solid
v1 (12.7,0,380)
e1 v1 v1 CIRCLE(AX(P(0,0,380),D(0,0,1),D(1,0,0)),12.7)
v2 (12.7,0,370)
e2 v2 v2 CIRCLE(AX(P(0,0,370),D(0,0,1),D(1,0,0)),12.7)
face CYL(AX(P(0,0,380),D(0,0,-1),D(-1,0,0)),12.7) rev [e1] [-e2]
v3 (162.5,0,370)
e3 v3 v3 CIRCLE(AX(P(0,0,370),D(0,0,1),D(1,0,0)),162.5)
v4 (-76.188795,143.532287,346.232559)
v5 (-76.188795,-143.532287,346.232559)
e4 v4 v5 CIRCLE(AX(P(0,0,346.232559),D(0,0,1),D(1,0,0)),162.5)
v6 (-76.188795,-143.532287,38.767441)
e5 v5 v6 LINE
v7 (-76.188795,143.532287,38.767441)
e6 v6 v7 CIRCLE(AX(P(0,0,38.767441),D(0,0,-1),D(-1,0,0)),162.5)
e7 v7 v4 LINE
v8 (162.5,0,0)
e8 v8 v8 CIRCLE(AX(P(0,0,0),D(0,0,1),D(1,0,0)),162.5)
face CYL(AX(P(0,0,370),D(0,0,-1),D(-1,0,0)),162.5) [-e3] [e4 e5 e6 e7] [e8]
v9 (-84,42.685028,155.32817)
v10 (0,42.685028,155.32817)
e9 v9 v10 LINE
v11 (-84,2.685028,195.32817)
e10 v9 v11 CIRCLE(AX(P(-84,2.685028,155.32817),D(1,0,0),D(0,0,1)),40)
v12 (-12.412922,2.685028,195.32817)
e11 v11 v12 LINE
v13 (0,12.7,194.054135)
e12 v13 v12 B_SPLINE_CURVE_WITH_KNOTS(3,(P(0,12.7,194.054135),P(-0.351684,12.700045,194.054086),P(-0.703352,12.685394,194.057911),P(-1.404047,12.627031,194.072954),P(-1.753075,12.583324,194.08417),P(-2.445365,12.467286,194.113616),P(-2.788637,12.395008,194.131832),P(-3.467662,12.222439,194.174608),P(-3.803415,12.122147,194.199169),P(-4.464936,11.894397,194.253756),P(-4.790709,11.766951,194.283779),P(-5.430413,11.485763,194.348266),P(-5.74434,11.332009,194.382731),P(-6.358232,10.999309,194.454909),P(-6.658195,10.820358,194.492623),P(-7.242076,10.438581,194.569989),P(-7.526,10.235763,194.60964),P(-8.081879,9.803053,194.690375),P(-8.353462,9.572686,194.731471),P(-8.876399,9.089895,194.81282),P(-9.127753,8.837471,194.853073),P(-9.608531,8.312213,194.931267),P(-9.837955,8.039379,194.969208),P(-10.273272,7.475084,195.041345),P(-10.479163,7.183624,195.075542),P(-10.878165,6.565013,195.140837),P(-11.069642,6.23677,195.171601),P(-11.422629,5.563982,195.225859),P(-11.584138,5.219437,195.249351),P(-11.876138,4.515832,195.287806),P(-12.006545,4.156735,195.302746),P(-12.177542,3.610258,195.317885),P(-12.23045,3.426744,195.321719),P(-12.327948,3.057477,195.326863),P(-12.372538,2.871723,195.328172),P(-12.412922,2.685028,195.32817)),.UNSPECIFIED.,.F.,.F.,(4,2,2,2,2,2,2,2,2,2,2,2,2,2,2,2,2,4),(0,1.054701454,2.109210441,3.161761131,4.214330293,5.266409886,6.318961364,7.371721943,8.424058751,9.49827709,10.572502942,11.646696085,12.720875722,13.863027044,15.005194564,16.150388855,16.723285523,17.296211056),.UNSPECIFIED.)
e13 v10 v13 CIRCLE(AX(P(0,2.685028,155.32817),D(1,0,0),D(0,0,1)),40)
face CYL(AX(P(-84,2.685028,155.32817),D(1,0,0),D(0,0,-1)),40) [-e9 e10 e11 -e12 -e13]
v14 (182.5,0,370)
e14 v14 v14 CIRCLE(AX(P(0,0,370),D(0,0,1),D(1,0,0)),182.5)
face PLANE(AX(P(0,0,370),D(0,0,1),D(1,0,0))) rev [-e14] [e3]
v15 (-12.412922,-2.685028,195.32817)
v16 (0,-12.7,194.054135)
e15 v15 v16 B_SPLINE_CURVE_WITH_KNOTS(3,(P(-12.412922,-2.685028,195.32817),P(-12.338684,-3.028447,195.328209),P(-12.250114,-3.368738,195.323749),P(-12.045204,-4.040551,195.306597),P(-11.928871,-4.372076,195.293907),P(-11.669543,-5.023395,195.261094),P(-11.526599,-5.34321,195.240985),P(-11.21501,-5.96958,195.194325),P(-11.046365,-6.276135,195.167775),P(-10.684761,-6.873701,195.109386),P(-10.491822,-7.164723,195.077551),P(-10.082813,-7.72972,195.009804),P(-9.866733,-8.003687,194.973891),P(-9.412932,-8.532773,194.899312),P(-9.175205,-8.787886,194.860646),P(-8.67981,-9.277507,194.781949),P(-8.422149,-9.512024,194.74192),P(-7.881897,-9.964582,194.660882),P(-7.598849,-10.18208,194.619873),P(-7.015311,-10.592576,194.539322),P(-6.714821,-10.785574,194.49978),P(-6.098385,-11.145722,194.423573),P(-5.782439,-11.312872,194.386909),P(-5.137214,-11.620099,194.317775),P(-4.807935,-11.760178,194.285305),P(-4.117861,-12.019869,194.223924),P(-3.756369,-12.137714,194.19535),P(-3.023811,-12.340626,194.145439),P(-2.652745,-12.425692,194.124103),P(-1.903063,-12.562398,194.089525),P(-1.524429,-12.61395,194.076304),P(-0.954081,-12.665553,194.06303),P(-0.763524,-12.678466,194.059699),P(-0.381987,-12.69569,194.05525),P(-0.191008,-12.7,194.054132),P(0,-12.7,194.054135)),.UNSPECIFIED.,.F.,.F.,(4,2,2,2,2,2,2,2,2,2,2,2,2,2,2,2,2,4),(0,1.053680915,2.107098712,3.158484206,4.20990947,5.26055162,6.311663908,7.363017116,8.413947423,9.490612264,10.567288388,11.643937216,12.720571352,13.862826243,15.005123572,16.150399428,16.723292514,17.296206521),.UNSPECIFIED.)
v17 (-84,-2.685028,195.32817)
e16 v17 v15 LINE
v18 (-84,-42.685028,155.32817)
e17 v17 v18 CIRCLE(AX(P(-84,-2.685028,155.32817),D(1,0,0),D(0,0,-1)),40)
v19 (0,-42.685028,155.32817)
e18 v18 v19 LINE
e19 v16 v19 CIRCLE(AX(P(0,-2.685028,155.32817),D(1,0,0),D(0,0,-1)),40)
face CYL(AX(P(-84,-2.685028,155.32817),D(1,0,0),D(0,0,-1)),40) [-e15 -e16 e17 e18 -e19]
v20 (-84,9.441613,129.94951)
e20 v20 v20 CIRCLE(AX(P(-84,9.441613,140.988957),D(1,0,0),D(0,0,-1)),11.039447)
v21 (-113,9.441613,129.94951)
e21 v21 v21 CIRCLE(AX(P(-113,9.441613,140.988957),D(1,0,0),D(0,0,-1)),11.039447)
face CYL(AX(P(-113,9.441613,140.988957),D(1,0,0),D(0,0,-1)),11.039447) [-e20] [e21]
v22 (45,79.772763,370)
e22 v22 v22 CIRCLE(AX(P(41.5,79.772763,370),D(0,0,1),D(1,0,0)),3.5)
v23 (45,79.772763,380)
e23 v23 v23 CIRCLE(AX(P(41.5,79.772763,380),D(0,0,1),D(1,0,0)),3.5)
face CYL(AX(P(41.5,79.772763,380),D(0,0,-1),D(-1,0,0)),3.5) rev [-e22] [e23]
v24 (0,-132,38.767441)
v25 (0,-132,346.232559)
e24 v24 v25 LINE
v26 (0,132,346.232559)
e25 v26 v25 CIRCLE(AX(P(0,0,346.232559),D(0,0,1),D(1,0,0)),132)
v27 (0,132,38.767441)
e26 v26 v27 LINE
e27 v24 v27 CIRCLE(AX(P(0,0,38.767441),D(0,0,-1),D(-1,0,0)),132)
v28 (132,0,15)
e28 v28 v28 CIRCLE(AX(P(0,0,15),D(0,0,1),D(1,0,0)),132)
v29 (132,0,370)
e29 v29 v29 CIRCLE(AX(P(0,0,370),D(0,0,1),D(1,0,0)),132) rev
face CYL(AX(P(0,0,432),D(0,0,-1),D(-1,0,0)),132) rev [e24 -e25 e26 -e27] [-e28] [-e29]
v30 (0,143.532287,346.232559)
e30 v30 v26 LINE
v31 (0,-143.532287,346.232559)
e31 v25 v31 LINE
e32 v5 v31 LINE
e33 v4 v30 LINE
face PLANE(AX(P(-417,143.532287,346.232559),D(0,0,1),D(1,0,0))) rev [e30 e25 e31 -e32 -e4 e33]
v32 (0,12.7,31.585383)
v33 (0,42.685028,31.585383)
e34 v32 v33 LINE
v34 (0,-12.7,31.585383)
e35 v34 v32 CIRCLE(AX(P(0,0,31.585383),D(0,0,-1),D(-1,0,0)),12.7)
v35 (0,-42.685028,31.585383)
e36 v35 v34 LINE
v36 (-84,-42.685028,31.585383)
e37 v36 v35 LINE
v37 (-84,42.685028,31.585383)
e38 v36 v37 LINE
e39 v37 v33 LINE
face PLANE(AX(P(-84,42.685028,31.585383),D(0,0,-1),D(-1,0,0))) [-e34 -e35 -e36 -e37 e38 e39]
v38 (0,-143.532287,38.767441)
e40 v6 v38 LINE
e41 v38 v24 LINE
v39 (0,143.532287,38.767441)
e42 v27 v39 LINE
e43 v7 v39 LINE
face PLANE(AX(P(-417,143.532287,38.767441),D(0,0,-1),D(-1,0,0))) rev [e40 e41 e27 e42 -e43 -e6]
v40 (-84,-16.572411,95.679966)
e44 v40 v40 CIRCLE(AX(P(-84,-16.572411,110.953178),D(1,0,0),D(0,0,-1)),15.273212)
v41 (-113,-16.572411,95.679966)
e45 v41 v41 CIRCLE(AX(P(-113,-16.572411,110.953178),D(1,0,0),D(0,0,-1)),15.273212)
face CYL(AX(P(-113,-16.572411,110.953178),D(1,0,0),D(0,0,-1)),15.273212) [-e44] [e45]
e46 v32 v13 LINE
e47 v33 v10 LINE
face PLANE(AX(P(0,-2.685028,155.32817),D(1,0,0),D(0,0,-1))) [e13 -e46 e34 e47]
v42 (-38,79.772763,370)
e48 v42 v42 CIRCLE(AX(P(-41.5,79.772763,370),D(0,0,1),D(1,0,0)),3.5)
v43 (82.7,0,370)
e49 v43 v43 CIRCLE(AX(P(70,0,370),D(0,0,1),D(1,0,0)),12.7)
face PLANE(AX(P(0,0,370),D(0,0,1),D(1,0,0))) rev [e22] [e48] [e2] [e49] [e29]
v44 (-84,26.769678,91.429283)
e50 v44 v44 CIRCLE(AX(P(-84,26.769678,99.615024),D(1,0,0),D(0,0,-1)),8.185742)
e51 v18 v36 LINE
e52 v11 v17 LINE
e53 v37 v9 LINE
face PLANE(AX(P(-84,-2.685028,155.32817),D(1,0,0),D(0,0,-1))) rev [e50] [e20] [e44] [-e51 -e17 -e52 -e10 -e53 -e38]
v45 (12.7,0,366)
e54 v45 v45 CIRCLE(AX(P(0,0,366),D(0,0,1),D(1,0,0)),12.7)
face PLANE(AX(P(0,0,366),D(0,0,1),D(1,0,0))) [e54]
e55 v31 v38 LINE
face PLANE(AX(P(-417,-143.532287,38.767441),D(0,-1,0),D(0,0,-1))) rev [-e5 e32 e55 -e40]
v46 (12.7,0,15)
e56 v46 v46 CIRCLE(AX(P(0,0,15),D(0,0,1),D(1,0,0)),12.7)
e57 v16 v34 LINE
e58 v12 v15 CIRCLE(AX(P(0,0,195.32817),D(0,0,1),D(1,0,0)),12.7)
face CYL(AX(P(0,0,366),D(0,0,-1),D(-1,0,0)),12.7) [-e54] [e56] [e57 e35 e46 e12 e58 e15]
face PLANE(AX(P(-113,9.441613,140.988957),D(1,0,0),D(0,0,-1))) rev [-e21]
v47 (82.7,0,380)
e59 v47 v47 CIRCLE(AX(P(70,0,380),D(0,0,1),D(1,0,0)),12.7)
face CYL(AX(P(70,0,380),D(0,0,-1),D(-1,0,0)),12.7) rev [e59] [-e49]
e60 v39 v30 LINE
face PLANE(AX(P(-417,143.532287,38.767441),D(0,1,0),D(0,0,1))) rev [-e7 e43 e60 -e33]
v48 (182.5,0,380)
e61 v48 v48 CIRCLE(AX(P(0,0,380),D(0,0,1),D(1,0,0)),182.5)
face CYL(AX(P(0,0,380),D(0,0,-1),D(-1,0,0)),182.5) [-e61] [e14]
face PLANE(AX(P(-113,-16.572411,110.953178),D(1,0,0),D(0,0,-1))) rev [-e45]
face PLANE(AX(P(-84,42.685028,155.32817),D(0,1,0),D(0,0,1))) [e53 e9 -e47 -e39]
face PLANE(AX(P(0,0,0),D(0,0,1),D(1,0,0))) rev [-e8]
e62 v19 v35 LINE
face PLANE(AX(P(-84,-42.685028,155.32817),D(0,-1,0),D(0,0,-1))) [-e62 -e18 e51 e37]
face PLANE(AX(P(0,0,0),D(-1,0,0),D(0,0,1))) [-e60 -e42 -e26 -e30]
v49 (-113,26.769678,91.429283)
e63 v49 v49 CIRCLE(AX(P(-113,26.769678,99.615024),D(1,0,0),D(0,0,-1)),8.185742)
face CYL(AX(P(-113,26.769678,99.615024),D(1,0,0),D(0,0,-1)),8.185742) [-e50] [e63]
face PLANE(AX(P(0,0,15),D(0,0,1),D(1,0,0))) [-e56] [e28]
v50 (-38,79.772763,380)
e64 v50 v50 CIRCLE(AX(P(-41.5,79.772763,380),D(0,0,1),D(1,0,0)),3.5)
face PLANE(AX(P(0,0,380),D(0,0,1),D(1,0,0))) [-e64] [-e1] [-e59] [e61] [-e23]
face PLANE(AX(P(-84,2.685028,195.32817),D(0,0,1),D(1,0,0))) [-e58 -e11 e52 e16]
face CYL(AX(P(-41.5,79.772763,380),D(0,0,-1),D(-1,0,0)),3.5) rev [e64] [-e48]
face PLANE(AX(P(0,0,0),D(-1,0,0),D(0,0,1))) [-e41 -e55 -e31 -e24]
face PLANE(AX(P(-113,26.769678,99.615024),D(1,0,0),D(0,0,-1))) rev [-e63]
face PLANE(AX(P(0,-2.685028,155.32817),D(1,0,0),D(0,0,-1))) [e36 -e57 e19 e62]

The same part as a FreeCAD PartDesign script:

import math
import FreeCAD as App
import Part
import Sketcher
from FreeCAD import Vector

doc = App.newDocument("Part")
body = doc.addObject("PartDesign::Body", "Body")

# Sketch on XY plane
sketch1 = doc.addObject("Sketcher::SketchObject", "Sketch")
body.addObject(sketch1)
sketch1.AttachmentSupport = (doc.XY_Plane, [""])
sketch1.MapMode = "FlatFace"
sketch1.addGeometry(Part.Circle(Vector(0, 0, 0), Vector(0, 0, 1), 162.5), False)
sketch1.addConstraint([
    Sketcher.Constraint("Coincident", 0, 3, -1, 1),
    Sketcher.Constraint("Diameter", 0, 325.0),
])
pad1 = doc.addObject("PartDesign::Pad", "Pad")
body.addObject(pad1)
pad1.Profile = sketch1
pad1.Length = 370

# Sketch on XY plane
sketch2 = doc.addObject("Sketcher::SketchObject", "Sketch001")
body.addObject(sketch2)
sketch2.AttachmentSupport = (doc.XY_Plane, [""])
sketch2.MapMode = "FlatFace"
sketch2.AttachmentOffset = App.Placement(Vector(0, 0, 15), App.Rotation())
sketch2.addGeometry(Part.Circle(Vector(0, 0, 0), Vector(0, 0, 1), 132), False)
sketch2.addConstraint([
    Sketcher.Constraint("Coincident", 0, 3, -1, 1),
    Sketcher.Constraint("Diameter", 0, 264.0),
])
pocket1 = doc.addObject("PartDesign::Pocket", "Pocket")
body.addObject(pocket1)
pocket1.Profile = sketch2
pocket1.Length = 417
pocket1.Reversed = True

# Sketch on YZ plane
sketch3 = doc.addObject("Sketcher::SketchObject", "Sketch002")
body.addObject(sketch3)
sketch3.AttachmentSupport = (doc.YZ_Plane, [""])
sketch3.MapMode = "FlatFace"
sketch3.addGeometry([
    Part.LineSegment(Vector(143.532287, 346.232559, 0), Vector(-143.532287, 346.232559, 0)),
    Part.LineSegment(Vector(-143.532287, 346.232559, 0), Vector(-143.532287, 38.767441, 0)),
    Part.LineSegment(Vector(-143.532287, 38.767441, 0), Vector(143.532287, 38.767441, 0)),
    Part.LineSegment(Vector(143.532287, 38.767441, 0), Vector(143.532287, 346.232559, 0)),
], False)
sketch3.addConstraint([
    Sketcher.Constraint("Coincident", 0, 2, 1, 1),
    Sketcher.Constraint("Coincident", 1, 2, 2, 1),
    Sketcher.Constraint("Coincident", 2, 2, 3, 1),
    Sketcher.Constraint("Coincident", 3, 2, 0, 1),
    Sketcher.Constraint("Horizontal", 0),
    Sketcher.Constraint("Vertical", 1),
    Sketcher.Constraint("Horizontal", 2),
    Sketcher.Constraint("Vertical", 3),
    Sketcher.Constraint("DistanceX", 0, 2, 0, 1, 287.064575),
    Sketcher.Constraint("DistanceY", 1, 2, 1, 1, 307.465118),
    Sketcher.Constraint("DistanceY", -1, 1, 0, 2, 346.232559),
    Sketcher.Constraint("DistanceX", 0, 2, -1, 1, 143.532287),
])
pocket2 = doc.addObject("PartDesign::Pocket", "Pocket001")
body.addObject(pocket2)
pocket2.Profile = sketch3
pocket2.Length = 417

# Sketch on XY plane
sketch4 = doc.addObject("Sketcher::SketchObject", "Sketch003")
body.addObject(sketch4)
sketch4.AttachmentSupport = (doc.XY_Plane, [""])
sketch4.MapMode = "FlatFace"
sketch4.AttachmentOffset = App.Placement(Vector(0, 0, 370), App.Rotation())
sketch4.addGeometry([
    Part.Circle(Vector(0, 0, 0), Vector(0, 0, 1), 182.5),  # 0
    Part.Circle(Vector(0, 0, 0), Vector(0, 0, 1), 12.7),  # 1
    Part.Circle(Vector(70, 0, 0), Vector(0, 0, 1), 12.7),  # 2
    Part.Circle(Vector(-41.5, 79.772763, 0), Vector(0, 0, 1), 3.5),  # 3
    Part.Circle(Vector(41.5, 79.772763, 0), Vector(0, 0, 1), 3.5),  # 4
], False)
sketch4.addConstraint([
    Sketcher.Constraint("Coincident", 0, 3, -1, 1),
    Sketcher.Constraint("Coincident", 1, 3, -1, 1),
    Sketcher.Constraint("Equal", 1, 2),
    Sketcher.Constraint("Equal", 3, 4),
    Sketcher.Constraint("Symmetric", 3, 3, 4, 3, -2),
    Sketcher.Constraint("PointOnObject", 2, 3, -1),
    Sketcher.Constraint("Diameter", 0, 365.0),
    Sketcher.Constraint("Diameter", 3, 7.0),
    Sketcher.Constraint("Diameter", 1, 25.4),
    Sketcher.Constraint("DistanceX", -1, 1, 2, 3, 70.0),
    Sketcher.Constraint("DistanceX", 3, 3, 4, 3, 83.0),
    Sketcher.Constraint("DistanceY", -1, 1, 3, 3, 79.772763),
])
pad2 = doc.addObject("PartDesign::Pad", "Pad001")
body.addObject(pad2)
pad2.Profile = sketch4
pad2.Length = 10
body2 = doc.addObject("PartDesign::Body", "Body001")

# Sketch on YZ plane
sketch5 = doc.addObject("Sketcher::SketchObject", "Sketch004")
body2.addObject(sketch5)
sketch5.AttachmentSupport = (doc.getObject("YZ_Plane001"), [""])
sketch5.MapMode = "FlatFace"
sketch5.addGeometry([
    Part.LineSegment(Vector(42.685028, 31.585383, 0), Vector(42.685028, 155.32817, 0)),  # 0
    Part.ArcOfCircle(Part.Circle(Vector(2.685028, 155.32817, 0), Vector(0, 0, 1), 40), math.radians(0), math.radians(90)),  # 1
    Part.LineSegment(Vector(2.685028, 195.32817, 0), Vector(-2.685028, 195.32817, 0)),  # 2
    Part.ArcOfCircle(Part.Circle(Vector(-2.685028, 155.32817, 0), Vector(0, 0, 1), 40), math.radians(90), math.radians(180)),  # 3
    Part.LineSegment(Vector(-42.685028, 155.32817, 0), Vector(-42.685028, 31.585383, 0)),  # 4
    Part.LineSegment(Vector(-42.685028, 31.585383, 0), Vector(42.685028, 31.585383, 0)),  # 5
], False)
sketch5.addConstraint([
    Sketcher.Constraint("Tangent", 0, 2, 1, 1),
    Sketcher.Constraint("Tangent", 1, 2, 2, 1),
    Sketcher.Constraint("Tangent", 2, 2, 3, 1),
    Sketcher.Constraint("Tangent", 3, 2, 4, 1),
    Sketcher.Constraint("Coincident", 4, 2, 5, 1),
    Sketcher.Constraint("Coincident", 5, 2, 0, 1),
    Sketcher.Constraint("Vertical", 0),
    Sketcher.Constraint("Horizontal", 2),
    Sketcher.Constraint("Vertical", 4),
    Sketcher.Constraint("Horizontal", 5),
    Sketcher.Constraint("Equal", 1, 3),
    Sketcher.Constraint("Radius", 1, 40.0),
    Sketcher.Constraint("DistanceX", 2, 2, 2, 1, 5.370056),
    Sketcher.Constraint("DistanceY", 0, 1, 0, 2, 123.742787),
    Sketcher.Constraint("DistanceY", -1, 1, 1, 3, 155.32817),
    Sketcher.Constraint("DistanceX", -1, 1, 1, 3, 2.685028),
])
pad3 = doc.addObject("PartDesign::Pad", "Pad002")
body2.addObject(pad3)
pad3.Profile = sketch5
pad3.Length = 84
pad3.Reversed = True

# Sketch on YZ plane
sketch6 = doc.addObject("Sketcher::SketchObject", "Sketch005")
body2.addObject(sketch6)
sketch6.AttachmentSupport = (doc.getObject("YZ_Plane001"), [""])
sketch6.MapMode = "FlatFace"
sketch6.addGeometry([
    Part.Circle(Vector(9.441613, 140.988957, 0), Vector(0, 0, 1), 11.039447),
    Part.Circle(Vector(-16.572411, 110.953178, 0), Vector(0, 0, 1), 15.273212),
    Part.Circle(Vector(26.769678, 99.615024, 0), Vector(0, 0, 1), 8.185742),
], False)
sketch6.addConstraint([
    Sketcher.Constraint("Diameter", 0, 22.078894),
    Sketcher.Constraint("Diameter", 1, 30.546424),
    Sketcher.Constraint("Diameter", 2, 16.371483),
    Sketcher.Constraint("DistanceX", 1, 3, -1, 1, 16.572411),
    Sketcher.Constraint("DistanceX", -1, 1, 2, 3, 26.769678),
    Sketcher.Constraint("DistanceY", 1, 3, 0, 3, 30.035779),
    Sketcher.Constraint("DistanceX", -1, 1, 0, 3, 9.441613),
    Sketcher.Constraint("DistanceY", -1, 1, 0, 3, 140.988957),
    Sketcher.Constraint("DistanceY", -1, 1, 2, 3, 99.615024),
])
pad4 = doc.addObject("PartDesign::Pad", "Pad003")
body2.addObject(pad4)
pad4.Profile = sketch6
pad4.Length = 113
pad4.Reversed = True
body.AllowCompound = True
doc.recompute()

boolean = doc.addObject("PartDesign::Boolean", "Boolean")
body.addObject(boolean)
boolean.Type = "Fuse"
boolean.addObjects([body2])

# Sketch on XY plane
sketch7 = doc.addObject("Sketcher::SketchObject", "Sketch006")
body.addObject(sketch7)
sketch7.AttachmentSupport = (doc.XY_Plane, [""])
sketch7.MapMode = "FlatFace"
sketch7.AttachmentOffset = App.Placement(Vector(0, 0, 15), App.Rotation())
sketch7.addGeometry(Part.Circle(Vector(0, 0, 0), Vector(0, 0, 1), 12.7), False)
sketch7.addConstraint([
    Sketcher.Constraint("Coincident", 0, 3, -1, 1),
    Sketcher.Constraint("Diameter", 0, 25.4),
])
pad5 = doc.addObject("PartDesign::Pad", "Pad004")
body.addObject(pad5)
pad5.Profile = sketch7
pad5.Length = 351

doc.recompute()
